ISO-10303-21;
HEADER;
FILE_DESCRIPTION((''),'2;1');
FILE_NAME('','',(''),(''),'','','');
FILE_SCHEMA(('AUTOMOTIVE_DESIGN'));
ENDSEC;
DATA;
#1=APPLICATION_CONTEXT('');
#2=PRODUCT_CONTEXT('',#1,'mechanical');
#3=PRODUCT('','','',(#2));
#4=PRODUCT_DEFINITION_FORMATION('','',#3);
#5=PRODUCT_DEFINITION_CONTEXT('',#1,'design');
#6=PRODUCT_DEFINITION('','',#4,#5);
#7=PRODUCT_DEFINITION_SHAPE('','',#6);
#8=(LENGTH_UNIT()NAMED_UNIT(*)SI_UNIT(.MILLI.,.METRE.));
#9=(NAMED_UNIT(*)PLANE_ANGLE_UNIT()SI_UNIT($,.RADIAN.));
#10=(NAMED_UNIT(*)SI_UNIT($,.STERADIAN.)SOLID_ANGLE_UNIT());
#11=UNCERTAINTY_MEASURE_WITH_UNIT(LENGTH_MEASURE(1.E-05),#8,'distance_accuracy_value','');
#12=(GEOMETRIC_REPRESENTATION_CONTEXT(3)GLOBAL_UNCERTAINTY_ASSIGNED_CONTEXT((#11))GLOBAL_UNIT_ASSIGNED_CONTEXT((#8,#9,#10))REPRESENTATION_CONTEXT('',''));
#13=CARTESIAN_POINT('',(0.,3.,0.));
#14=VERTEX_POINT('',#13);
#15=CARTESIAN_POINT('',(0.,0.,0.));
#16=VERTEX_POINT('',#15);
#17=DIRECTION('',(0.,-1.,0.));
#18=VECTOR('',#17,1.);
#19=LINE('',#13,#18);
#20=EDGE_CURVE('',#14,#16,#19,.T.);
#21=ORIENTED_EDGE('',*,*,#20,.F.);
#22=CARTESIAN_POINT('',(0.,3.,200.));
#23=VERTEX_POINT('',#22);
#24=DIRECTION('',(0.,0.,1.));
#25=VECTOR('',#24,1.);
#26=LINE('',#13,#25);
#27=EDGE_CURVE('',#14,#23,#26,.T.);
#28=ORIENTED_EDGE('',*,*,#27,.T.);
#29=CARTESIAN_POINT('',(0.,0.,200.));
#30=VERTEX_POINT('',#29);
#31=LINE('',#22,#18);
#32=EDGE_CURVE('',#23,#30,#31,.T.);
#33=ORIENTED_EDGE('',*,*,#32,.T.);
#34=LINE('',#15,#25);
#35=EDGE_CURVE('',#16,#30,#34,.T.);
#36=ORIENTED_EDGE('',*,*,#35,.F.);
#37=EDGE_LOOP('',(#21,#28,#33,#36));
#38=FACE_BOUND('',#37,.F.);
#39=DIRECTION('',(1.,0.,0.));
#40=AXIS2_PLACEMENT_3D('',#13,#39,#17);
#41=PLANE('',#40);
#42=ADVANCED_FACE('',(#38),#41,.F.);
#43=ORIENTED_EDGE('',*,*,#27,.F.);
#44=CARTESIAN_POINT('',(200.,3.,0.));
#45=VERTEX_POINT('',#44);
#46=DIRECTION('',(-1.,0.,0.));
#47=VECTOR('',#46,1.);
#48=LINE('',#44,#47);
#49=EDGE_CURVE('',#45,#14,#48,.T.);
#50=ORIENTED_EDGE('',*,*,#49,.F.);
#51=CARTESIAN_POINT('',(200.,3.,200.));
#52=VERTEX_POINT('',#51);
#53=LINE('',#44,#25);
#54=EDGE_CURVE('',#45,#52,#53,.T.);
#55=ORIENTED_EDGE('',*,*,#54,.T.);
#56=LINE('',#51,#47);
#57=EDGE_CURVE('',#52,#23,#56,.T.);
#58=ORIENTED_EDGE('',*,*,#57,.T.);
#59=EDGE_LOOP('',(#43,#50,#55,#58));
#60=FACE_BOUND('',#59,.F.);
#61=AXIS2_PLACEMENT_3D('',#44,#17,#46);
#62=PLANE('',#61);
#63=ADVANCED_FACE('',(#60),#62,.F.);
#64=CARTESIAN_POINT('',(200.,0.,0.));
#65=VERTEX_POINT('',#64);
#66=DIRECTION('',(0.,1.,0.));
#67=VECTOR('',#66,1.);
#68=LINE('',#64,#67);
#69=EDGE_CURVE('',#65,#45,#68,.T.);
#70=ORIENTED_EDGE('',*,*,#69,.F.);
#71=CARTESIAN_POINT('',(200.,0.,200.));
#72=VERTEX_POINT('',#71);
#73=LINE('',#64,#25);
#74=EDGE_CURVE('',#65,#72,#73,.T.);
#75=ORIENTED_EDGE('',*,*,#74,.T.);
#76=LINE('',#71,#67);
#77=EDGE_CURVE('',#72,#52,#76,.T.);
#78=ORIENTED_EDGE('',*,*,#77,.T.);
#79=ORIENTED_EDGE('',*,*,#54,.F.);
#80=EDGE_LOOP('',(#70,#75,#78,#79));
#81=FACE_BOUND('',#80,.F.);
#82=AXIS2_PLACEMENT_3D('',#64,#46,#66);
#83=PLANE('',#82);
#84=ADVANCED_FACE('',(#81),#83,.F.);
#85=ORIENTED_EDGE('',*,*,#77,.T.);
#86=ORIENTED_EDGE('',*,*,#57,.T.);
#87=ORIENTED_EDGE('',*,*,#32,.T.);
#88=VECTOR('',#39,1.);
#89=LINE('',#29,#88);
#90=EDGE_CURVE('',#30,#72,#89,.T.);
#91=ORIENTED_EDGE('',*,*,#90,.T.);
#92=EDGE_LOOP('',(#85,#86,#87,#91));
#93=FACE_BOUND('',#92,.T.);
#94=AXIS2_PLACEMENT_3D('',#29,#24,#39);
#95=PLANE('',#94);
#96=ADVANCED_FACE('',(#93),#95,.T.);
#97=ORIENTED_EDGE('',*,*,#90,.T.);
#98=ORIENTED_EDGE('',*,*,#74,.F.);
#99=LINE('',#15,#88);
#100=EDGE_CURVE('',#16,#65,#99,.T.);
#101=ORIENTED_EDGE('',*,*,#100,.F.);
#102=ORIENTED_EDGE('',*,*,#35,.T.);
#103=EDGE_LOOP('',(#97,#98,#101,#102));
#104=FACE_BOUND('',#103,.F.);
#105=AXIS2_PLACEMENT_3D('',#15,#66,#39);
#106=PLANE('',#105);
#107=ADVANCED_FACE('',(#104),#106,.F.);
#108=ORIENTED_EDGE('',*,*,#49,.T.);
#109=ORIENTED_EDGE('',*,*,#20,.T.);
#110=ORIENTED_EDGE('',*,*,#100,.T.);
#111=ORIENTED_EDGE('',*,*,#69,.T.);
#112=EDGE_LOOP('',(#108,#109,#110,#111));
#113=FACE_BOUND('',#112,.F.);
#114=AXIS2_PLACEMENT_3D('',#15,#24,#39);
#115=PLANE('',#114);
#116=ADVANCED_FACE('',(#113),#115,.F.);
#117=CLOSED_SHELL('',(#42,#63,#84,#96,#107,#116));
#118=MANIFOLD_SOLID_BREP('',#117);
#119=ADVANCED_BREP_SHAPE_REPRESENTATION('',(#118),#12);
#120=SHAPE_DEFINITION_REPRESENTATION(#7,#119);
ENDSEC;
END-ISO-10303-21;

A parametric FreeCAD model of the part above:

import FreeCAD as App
import Part
import Sketcher

V = App.Vector

doc = App.newDocument("Part")
body = doc.addObject("PartDesign::Body", "Body")

# Sketch on XY plane
sketch1 = body.newObject("Sketcher::SketchObject", "Sketch")
sketch1.AttachmentSupport = (doc.getObject("XY_Plane"), [""])
sketch1.MapMode = "FlatFace"
sketch1.addGeometry([
    Part.LineSegment(V(0, 3, 0), V(0, 0, 0)),
    Part.LineSegment(V(0, 0, 0), V(200, 0, 0)),
    Part.LineSegment(V(200, 0, 0), V(200, 3, 0)),
    Part.LineSegment(V(200, 3, 0), V(0, 3, 0)),
], False)
sketch1.addConstraint([
    Sketcher.Constraint("Coincident", 0, 2, 1, 1),
    Sketcher.Constraint("Coincident", 1, 2, 2, 1),
    Sketcher.Constraint("Coincident", 2, 2, 3, 1),
    Sketcher.Constraint("Coincident", 3, 2, 0, 1),
    Sketcher.Constraint("Vertical", 0),
    Sketcher.Constraint("Horizontal", 1),
    Sketcher.Constraint("Vertical", 2),
    Sketcher.Constraint("Horizontal", 3),
    Sketcher.Constraint("Coincident", 0, 2, -1, 1),
    Sketcher.Constraint("DistanceX", 1, 1, 1, 2, 200.0),
    Sketcher.Constraint("DistanceY", 0, 2, 0, 1, 3.0),
])
pad1 = body.newObject("PartDesign::Pad", "Pad")
pad1.Profile = sketch1
pad1.Length = 200

doc.recompute()
